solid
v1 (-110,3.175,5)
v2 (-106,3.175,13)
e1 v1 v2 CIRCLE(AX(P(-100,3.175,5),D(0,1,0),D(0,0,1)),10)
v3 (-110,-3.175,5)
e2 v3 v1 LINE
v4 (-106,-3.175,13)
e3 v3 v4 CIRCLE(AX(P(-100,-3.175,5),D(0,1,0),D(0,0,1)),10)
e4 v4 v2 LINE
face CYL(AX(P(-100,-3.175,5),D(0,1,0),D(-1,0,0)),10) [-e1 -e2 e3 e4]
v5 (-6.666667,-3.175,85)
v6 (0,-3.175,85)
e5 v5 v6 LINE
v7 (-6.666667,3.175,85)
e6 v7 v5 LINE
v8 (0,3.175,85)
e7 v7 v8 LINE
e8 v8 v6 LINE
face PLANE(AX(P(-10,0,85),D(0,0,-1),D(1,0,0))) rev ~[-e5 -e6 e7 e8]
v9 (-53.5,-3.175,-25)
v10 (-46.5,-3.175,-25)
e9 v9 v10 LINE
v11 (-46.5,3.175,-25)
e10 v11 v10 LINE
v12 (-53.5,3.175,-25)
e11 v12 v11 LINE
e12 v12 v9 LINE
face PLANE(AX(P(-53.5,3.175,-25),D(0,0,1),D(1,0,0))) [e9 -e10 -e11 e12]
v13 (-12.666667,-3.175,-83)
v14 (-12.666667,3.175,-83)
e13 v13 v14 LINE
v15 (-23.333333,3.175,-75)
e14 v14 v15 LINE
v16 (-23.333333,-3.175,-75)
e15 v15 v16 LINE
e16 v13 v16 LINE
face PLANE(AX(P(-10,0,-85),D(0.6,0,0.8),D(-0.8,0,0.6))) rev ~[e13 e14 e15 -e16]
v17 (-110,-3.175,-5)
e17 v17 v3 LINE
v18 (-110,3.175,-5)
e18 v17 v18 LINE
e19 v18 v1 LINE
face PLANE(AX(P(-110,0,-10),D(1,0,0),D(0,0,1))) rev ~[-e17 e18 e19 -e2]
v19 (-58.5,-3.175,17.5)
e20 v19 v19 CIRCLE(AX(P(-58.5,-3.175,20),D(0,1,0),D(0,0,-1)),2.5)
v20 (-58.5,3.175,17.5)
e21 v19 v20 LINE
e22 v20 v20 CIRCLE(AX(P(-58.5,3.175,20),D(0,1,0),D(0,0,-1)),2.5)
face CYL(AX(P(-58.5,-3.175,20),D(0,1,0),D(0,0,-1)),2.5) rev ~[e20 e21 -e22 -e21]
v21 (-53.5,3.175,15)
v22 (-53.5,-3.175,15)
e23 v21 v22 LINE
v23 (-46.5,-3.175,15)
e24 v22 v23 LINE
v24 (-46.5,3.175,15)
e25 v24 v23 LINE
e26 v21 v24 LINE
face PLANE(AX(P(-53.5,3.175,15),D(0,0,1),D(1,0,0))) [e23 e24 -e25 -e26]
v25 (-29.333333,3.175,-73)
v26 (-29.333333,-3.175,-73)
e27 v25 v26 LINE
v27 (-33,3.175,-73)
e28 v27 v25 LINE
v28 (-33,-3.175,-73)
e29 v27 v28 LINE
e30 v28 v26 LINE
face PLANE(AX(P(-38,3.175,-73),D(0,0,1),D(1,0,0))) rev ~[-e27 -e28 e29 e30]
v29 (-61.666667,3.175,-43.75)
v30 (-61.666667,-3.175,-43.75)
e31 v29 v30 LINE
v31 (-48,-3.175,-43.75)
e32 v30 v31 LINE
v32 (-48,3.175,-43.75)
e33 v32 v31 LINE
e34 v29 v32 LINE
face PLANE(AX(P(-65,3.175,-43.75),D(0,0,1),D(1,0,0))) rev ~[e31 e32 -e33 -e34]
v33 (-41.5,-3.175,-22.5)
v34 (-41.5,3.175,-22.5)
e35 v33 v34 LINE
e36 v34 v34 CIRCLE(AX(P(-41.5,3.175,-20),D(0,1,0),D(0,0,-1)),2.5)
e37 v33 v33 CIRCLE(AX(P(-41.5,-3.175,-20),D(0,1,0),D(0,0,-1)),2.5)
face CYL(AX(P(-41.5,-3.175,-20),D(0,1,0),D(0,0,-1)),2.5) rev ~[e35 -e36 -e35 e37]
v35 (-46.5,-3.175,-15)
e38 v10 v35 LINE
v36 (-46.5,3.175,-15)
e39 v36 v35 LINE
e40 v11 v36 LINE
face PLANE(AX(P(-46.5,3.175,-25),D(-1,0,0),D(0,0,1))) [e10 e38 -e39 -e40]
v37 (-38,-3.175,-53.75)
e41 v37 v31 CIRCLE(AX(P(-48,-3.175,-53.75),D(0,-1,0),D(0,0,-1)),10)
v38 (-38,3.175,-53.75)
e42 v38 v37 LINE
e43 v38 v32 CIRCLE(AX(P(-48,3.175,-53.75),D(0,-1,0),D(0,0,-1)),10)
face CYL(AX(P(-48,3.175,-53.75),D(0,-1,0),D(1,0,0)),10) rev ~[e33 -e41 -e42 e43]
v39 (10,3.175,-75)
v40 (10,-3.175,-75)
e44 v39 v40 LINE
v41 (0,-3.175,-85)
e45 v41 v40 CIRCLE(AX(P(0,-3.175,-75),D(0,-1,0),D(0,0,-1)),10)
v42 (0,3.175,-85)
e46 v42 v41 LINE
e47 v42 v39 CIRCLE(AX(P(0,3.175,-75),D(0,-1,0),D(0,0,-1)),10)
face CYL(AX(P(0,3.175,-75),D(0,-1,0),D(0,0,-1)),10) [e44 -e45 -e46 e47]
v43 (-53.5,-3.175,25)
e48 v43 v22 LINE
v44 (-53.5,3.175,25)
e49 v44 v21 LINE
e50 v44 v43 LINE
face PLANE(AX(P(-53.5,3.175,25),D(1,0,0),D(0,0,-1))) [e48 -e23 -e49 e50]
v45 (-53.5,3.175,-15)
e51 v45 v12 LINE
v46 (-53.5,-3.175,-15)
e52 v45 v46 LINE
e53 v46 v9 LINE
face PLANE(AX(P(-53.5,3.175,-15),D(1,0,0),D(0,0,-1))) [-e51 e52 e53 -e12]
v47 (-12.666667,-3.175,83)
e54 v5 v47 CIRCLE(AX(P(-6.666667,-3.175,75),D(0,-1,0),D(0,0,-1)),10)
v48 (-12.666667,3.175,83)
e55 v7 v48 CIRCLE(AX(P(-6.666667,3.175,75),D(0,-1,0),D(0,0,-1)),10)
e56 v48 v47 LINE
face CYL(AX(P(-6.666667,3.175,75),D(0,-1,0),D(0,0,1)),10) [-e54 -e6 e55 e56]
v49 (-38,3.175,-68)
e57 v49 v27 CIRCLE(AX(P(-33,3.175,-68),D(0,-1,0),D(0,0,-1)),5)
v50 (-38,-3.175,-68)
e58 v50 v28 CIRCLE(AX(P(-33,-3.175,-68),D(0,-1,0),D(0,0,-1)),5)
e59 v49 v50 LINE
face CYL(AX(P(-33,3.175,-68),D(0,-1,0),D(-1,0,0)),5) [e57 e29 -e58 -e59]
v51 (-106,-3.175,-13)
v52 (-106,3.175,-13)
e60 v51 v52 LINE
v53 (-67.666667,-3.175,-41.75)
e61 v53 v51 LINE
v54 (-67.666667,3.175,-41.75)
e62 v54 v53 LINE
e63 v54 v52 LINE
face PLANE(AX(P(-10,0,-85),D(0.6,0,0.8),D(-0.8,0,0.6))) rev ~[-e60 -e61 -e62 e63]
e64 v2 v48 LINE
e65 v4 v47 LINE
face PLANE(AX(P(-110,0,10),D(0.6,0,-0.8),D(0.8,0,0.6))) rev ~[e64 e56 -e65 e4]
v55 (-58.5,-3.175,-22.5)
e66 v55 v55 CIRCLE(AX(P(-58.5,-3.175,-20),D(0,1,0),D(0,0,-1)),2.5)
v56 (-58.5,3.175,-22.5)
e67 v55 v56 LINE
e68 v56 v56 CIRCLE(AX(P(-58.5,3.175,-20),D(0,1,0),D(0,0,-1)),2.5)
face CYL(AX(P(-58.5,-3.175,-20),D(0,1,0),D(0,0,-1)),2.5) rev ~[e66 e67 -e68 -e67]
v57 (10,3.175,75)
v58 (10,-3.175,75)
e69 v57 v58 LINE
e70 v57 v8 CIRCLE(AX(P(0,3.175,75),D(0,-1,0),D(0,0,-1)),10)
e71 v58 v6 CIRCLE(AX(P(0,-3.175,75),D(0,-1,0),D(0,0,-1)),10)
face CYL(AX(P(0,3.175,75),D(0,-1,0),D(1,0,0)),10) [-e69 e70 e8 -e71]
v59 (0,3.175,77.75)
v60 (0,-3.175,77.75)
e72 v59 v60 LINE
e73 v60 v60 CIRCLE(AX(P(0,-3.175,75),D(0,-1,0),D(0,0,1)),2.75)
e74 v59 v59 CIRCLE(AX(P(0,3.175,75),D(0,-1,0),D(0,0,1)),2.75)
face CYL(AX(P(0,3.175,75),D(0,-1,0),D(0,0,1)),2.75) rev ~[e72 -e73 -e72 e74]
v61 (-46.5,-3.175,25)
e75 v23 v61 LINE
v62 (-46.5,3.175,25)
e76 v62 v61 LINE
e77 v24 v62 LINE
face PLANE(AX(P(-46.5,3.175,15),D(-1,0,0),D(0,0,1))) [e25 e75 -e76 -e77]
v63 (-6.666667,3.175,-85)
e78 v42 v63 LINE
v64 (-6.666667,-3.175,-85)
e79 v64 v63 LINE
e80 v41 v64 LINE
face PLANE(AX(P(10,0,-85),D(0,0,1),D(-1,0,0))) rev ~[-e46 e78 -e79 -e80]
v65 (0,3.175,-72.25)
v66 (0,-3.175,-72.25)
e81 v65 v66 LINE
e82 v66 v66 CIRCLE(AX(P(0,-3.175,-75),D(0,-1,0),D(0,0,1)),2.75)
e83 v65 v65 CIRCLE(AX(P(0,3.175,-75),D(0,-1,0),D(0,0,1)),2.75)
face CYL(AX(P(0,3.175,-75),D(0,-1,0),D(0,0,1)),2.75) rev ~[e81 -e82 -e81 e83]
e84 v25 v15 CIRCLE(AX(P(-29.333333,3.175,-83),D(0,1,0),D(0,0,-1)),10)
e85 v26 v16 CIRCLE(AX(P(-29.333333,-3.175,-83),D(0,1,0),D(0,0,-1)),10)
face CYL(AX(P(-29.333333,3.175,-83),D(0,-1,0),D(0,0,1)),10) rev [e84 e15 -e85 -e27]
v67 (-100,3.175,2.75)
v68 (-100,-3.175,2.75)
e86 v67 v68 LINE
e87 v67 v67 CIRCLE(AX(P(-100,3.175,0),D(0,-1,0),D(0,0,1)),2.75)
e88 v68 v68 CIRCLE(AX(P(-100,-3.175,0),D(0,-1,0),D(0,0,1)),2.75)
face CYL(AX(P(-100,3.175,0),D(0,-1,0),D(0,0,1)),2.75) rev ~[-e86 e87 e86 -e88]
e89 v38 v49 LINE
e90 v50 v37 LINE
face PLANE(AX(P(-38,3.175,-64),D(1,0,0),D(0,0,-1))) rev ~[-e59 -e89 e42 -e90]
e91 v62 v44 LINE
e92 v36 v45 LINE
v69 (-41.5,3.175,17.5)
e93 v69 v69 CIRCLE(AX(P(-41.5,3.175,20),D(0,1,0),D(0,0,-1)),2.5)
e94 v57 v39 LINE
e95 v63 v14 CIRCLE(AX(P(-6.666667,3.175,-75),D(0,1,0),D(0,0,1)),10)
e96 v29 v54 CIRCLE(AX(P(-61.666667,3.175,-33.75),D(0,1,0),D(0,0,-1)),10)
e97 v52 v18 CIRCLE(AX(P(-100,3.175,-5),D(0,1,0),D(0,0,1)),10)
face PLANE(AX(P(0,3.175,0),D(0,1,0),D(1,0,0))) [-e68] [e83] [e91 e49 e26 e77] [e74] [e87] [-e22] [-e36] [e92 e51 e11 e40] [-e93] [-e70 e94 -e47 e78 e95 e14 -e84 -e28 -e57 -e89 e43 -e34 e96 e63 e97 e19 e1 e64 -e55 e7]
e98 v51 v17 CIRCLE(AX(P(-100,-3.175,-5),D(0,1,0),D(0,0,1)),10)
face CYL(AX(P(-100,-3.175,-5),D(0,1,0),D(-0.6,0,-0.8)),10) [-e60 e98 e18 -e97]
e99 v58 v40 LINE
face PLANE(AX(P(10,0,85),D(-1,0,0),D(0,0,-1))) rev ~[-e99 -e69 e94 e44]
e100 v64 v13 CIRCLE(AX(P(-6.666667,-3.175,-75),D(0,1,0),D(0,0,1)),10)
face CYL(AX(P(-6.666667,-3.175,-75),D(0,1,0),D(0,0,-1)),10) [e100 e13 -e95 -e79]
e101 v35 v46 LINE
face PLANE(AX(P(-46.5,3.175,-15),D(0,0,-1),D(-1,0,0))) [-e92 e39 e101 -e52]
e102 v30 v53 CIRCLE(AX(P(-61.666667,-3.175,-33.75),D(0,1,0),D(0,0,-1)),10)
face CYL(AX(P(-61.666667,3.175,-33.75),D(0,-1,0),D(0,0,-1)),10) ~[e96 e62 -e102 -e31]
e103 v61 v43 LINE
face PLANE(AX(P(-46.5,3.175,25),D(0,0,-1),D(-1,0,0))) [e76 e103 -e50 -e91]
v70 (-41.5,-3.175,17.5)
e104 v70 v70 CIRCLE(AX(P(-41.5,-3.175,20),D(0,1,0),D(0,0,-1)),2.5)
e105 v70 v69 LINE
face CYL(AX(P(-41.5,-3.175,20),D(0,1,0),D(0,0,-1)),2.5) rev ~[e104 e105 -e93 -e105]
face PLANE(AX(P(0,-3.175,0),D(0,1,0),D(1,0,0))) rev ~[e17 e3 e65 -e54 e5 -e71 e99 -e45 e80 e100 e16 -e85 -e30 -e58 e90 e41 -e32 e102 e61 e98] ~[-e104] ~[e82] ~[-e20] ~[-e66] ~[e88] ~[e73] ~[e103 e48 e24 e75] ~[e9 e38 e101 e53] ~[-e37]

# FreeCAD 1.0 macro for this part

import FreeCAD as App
import Part
import Sketcher


def edges_at(feature, points):
    """Names of the edges that pass closest to the given points."""
    edges = feature.Shape.Edges
    near = lambda p: min(range(len(edges)), key=lambda i: edges[i].distToShape(Part.Vertex(*p))[0])
    return sorted({f"Edge{near(p) + 1}" for p in points})


def add_polygon(sketch, points):
    """Adds a closed chain of lines whose ends are joined by coincident constraints."""
    first, n = sketch.GeometryCount, len(points)
    for a, b in zip(points, points[1:] + points[:1]):
        sketch.addGeometry(Part.LineSegment(App.Vector(*a, 0), App.Vector(*b, 0)), False)
    for i in range(n):
        sketch.addConstraint(Sketcher.Constraint("Coincident", first + i, 2, first + (i + 1) % n, 1))

doc = App.newDocument("Part")
body = doc.addObject("PartDesign::Body", "Body")

sketch1 = body.newObject("Sketcher::SketchObject", "Sketch")
sketch1.AttachmentSupport = (doc.getObject("XZ_Plane"), [""])
sketch1.MapMode = "FlatFace"
add_polygon(sketch1, [(10, -85), (-10, -85), (-110, -10), (-110, 10), (-10, 85), (10, 85)])
sketch1.addConstraint([
    Sketcher.Constraint("Horizontal", 0),
    Sketcher.Constraint("Vertical", 2),
    Sketcher.Constraint("Horizontal", 4),
    Sketcher.Constraint("Vertical", 5),
    Sketcher.Constraint("Symmetric", 0, 2, 4, 2, -1, 1),
    Sketcher.Constraint("Vertical", 0, 2, 3, 2),
    Sketcher.Constraint("Equal", 4, 2),
    Sketcher.Constraint("Equal", 1, 3),
    Sketcher.Constraint("DistanceX", 0, 2, 0, 1, 20.0),
    Sketcher.Constraint("DistanceY", 5, 2, 5, 1, 170.0),
    Sketcher.Constraint("DistanceX", 1, 2, 0, 2, 100.0),
])
pad1 = body.newObject("PartDesign::Pad", "Pad")
pad1.Profile = sketch1
pad1.Length = 6.35
pad1.Midplane = True
doc.recompute()

fillet = body.newObject("PartDesign::Fillet", "Fillet")
fillet.Base = (pad1, edges_at(pad1, [
    (-10, 0, 85),
    (10, 0, 85),
    (10, 0, -85),
    (-10, 0, -85),
    (-110, 0, -10),
    (-110, 0, 10),
]))
fillet.Radius = 10

sketch2 = body.newObject("Sketcher::SketchObject", "Sketch001")
sketch2.AttachmentSupport = (doc.getObject("XZ_Plane"), [""])
sketch2.MapMode = "FlatFace"
sketch2.AttachmentOffset = App.Placement(App.Vector(0, 0, -3.175), App.Rotation())
sketch2.addGeometry([
    Part.Circle(App.Vector(-100, 0, 0), App.Vector(0, 0, 1), 2.8),
    Part.Circle(App.Vector(0, -75, 0), App.Vector(0, 0, 1), 2.8),
    Part.Circle(App.Vector(0, 75, 0), App.Vector(0, 0, 1), 2.8),
], False)
sketch2.addConstraint([
    Sketcher.Constraint("Equal", 0, 1),
    Sketcher.Constraint("Equal", 1, 2),
    Sketcher.Constraint("Symmetric", 1, 3, 2, 3, -1, 1),
    Sketcher.Constraint("PointOnObject", 0, 3, -1),
    Sketcher.Constraint("PointOnObject", 1, 3, -2),
    Sketcher.Constraint("Diameter", 0, 5.5),
    Sketcher.Constraint("DistanceX", 0, 3, -1, 1, 100.0),
    Sketcher.Constraint("DistanceY", 1, 3, -1, 1, 75.0),
])
doc.recompute()
hole = body.newObject("PartDesign::Hole", "Hole")
hole.Profile = sketch2
hole.ThreadType = "None"
hole.Diameter = 5.5
hole.DepthType = "Dimension"
hole.Depth = 7.6
hole.DrillPoint = "Angled"
hole.DrillPointAngle = 118
hole.Reversed = True

sketch3 = body.newObject("Sketcher::SketchObject", "Sketch002")
sketch3.AttachmentSupport = (doc.getObject("XZ_Plane"), [""])
sketch3.MapMode = "FlatFace"
sketch3.AttachmentOffset = App.Placement(App.Vector(0, 0, -3.175), App.Rotation())
add_polygon(sketch3, [(-38, -64), (-65, -44), (-38, -44)])
sketch3.addConstraint([
    Sketcher.Constraint("Horizontal", 1),
    Sketcher.Constraint("Vertical", 2),
    Sketcher.Constraint("DistanceX", 1, 1, 1, 2, 27.0),
    Sketcher.Constraint("DistanceX", 0, 2, -1, 1, 65.0),
    Sketcher.Constraint("DistanceY", 2, 2, -1, 1, 64.0),
    Sketcher.Constraint("DistanceY", 2, 2, 2, 1, 20.25),
])
pocket1 = body.newObject("PartDesign::Pocket", "Pocket")
pocket1.Profile = sketch3
pocket1.Length = 10
pocket1.Reversed = True

sketch4 = body.newObject("Sketcher::SketchObject", "Sketch003")
sketch4.AttachmentSupport = (doc.getObject("XZ_Plane"), [""])
sketch4.MapMode = "FlatFace"
sketch4.AttachmentOffset = App.Placement(App.Vector(0, 0, -3.175), App.Rotation())
add_polygon(sketch4, [(-38, -73), (-38, -64), (-26, -73)])
sketch4.addConstraint([
    Sketcher.Constraint("Vertical", 0),
    Sketcher.Constraint("Horizontal", 2),
    Sketcher.Constraint("DistanceY", 0, 1, 0, 2, 9.0),
    Sketcher.Constraint("DistanceX", 2, 2, 2, 1, 12.0),
    Sketcher.Constraint("DistanceX", 0, 2, -1, 1, 38.0),
    Sketcher.Constraint("DistanceY", 0, 2, -1, 1, 64.0),
])
pad2 = body.newObject("PartDesign::Pad", "Pad001")
pad2.Profile = sketch4
pad2.Length = 6.35
doc.recompute()

fillet2 = body.newObject("PartDesign::Fillet", "Fillet001")
fillet2.Base = (pad2, edges_at(pad2, [(-65, 0, -43.75), (-38, 0, -43.75), (-26, 0, -73)]))
fillet2.Radius = 10
doc.recompute()

fillet3 = body.newObject("PartDesign::Fillet", "Fillet002")
fillet3.Base = (fillet2, edges_at(fillet2, [(-38, 0, -73)]))
fillet3.Radius = 5

sketch5 = body.newObject("Sketcher::SketchObject", "Sketch004")
sketch5.AttachmentSupport = (doc.getObject("XZ_Plane"), [""])
sketch5.MapMode = "FlatFace"
sketch5.AttachmentOffset = App.Placement(App.Vector(0, 0, 3.175), App.Rotation())
sketch5.addGeometry([
    Part.Circle(App.Vector(-58.5, -20, 0), App.Vector(0, 0, 1), 2.5),
    Part.Circle(App.Vector(-41.5, -20, 0), App.Vector(0, 0, 1), 2.5),
    Part.Circle(App.Vector(-41.5, 20, 0), App.Vector(0, 0, 1), 2.5),
    Part.Circle(App.Vector(-58.5, 20, 0), App.Vector(0, 0, 1), 2.5),
    Part.Circle(App.Vector(-50, -20, 0), App.Vector(0, 0, 1), 2.5),
    Part.Circle(App.Vector(-50, 20, 0), App.Vector(0, 0, 1), 2.5),
], False)
sketch5.addConstraint([
    Sketcher.Constraint("Equal", 0, 1),
    Sketcher.Constraint("Equal", 1, 2),
    Sketcher.Constraint("Equal", 2, 3),
    Sketcher.Constraint("Equal", 3, 4),
    Sketcher.Constraint("Equal", 4, 5),
    Sketcher.Constraint("Symmetric", 1, 3, 2, 3, -1),
    Sketcher.Constraint("Symmetric", 0, 3, 3, 3, -1),
    Sketcher.Constraint("Symmetric", 4, 3, 5, 3, -1),
    Sketcher.Constraint("Horizontal", 0, 3, 1, 3),
    Sketcher.Constraint("Horizontal", 1, 3, 4, 3),
    Sketcher.Constraint("Diameter", 0, 5.0),
    Sketcher.Constraint("DistanceY", 0, 3, -1, 1, 20.0),
    Sketcher.Constraint("DistanceX", 4, 3, -1, 1, 50.0),
    Sketcher.Constraint("DistanceX", 0, 3, 1, 3, 17.0),
    Sketcher.Constraint("DistanceX", 0, 3, -1, 1, 58.5),
])
doc.recompute()
hole2 = body.newObject("PartDesign::Hole", "Hole001")
hole2.Profile = sketch5
hole2.ThreadType = "None"
hole2.Diameter = 5
hole2.DepthType = "ThroughAll"

sketch6 = body.newObject("Sketcher::SketchObject", "Sketch005")
sketch6.AttachmentSupport = (doc.getObject("XZ_Plane"), [""])
sketch6.MapMode = "FlatFace"
sketch6.AttachmentOffset = App.Placement(App.Vector(0, 0, -3.175), App.Rotation())
add_polygon(sketch6, [(-46, -25), (-54, -25), (-54, -15), (-46, -15)])
add_polygon(sketch6, [(-46, 15), (-54, 15), (-54, 25), (-46, 25)])
sketch6.addConstraint([
    Sketcher.Constraint("Horizontal", 0),
    Sketcher.Constraint("Vertical", 1),
    Sketcher.Constraint("Horizontal", 2),
    Sketcher.Constraint("Vertical", 3),
    Sketcher.Constraint("Horizontal", 4),
    Sketcher.Constraint("Vertical", 5),
    Sketcher.Constraint("Horizontal", 6),
    Sketcher.Constraint("Vertical", 7),
    Sketcher.Constraint("Symmetric", 1, 2, 4, 2, -1),
    Sketcher.Constraint("Symmetric", 3, 2, 6, 2, -1),
    Sketcher.Constraint("DistanceX", 0, 2, 0, 1, 7.0),
    Sketcher.Constraint("DistanceY", 1, 1, 1, 2, 10.0),
    Sketcher.Constraint("DistanceY", 0, 2, -1, 1, 25.0),
    Sketcher.Constraint("DistanceX", 0, 2, -1, 1, 53.5),
])
pocket2 = body.newObject("PartDesign::Pocket", "Pocket001")
pocket2.Profile = sketch6
pocket2.Length = 10
pocket2.Reversed = True

doc.recompute()
